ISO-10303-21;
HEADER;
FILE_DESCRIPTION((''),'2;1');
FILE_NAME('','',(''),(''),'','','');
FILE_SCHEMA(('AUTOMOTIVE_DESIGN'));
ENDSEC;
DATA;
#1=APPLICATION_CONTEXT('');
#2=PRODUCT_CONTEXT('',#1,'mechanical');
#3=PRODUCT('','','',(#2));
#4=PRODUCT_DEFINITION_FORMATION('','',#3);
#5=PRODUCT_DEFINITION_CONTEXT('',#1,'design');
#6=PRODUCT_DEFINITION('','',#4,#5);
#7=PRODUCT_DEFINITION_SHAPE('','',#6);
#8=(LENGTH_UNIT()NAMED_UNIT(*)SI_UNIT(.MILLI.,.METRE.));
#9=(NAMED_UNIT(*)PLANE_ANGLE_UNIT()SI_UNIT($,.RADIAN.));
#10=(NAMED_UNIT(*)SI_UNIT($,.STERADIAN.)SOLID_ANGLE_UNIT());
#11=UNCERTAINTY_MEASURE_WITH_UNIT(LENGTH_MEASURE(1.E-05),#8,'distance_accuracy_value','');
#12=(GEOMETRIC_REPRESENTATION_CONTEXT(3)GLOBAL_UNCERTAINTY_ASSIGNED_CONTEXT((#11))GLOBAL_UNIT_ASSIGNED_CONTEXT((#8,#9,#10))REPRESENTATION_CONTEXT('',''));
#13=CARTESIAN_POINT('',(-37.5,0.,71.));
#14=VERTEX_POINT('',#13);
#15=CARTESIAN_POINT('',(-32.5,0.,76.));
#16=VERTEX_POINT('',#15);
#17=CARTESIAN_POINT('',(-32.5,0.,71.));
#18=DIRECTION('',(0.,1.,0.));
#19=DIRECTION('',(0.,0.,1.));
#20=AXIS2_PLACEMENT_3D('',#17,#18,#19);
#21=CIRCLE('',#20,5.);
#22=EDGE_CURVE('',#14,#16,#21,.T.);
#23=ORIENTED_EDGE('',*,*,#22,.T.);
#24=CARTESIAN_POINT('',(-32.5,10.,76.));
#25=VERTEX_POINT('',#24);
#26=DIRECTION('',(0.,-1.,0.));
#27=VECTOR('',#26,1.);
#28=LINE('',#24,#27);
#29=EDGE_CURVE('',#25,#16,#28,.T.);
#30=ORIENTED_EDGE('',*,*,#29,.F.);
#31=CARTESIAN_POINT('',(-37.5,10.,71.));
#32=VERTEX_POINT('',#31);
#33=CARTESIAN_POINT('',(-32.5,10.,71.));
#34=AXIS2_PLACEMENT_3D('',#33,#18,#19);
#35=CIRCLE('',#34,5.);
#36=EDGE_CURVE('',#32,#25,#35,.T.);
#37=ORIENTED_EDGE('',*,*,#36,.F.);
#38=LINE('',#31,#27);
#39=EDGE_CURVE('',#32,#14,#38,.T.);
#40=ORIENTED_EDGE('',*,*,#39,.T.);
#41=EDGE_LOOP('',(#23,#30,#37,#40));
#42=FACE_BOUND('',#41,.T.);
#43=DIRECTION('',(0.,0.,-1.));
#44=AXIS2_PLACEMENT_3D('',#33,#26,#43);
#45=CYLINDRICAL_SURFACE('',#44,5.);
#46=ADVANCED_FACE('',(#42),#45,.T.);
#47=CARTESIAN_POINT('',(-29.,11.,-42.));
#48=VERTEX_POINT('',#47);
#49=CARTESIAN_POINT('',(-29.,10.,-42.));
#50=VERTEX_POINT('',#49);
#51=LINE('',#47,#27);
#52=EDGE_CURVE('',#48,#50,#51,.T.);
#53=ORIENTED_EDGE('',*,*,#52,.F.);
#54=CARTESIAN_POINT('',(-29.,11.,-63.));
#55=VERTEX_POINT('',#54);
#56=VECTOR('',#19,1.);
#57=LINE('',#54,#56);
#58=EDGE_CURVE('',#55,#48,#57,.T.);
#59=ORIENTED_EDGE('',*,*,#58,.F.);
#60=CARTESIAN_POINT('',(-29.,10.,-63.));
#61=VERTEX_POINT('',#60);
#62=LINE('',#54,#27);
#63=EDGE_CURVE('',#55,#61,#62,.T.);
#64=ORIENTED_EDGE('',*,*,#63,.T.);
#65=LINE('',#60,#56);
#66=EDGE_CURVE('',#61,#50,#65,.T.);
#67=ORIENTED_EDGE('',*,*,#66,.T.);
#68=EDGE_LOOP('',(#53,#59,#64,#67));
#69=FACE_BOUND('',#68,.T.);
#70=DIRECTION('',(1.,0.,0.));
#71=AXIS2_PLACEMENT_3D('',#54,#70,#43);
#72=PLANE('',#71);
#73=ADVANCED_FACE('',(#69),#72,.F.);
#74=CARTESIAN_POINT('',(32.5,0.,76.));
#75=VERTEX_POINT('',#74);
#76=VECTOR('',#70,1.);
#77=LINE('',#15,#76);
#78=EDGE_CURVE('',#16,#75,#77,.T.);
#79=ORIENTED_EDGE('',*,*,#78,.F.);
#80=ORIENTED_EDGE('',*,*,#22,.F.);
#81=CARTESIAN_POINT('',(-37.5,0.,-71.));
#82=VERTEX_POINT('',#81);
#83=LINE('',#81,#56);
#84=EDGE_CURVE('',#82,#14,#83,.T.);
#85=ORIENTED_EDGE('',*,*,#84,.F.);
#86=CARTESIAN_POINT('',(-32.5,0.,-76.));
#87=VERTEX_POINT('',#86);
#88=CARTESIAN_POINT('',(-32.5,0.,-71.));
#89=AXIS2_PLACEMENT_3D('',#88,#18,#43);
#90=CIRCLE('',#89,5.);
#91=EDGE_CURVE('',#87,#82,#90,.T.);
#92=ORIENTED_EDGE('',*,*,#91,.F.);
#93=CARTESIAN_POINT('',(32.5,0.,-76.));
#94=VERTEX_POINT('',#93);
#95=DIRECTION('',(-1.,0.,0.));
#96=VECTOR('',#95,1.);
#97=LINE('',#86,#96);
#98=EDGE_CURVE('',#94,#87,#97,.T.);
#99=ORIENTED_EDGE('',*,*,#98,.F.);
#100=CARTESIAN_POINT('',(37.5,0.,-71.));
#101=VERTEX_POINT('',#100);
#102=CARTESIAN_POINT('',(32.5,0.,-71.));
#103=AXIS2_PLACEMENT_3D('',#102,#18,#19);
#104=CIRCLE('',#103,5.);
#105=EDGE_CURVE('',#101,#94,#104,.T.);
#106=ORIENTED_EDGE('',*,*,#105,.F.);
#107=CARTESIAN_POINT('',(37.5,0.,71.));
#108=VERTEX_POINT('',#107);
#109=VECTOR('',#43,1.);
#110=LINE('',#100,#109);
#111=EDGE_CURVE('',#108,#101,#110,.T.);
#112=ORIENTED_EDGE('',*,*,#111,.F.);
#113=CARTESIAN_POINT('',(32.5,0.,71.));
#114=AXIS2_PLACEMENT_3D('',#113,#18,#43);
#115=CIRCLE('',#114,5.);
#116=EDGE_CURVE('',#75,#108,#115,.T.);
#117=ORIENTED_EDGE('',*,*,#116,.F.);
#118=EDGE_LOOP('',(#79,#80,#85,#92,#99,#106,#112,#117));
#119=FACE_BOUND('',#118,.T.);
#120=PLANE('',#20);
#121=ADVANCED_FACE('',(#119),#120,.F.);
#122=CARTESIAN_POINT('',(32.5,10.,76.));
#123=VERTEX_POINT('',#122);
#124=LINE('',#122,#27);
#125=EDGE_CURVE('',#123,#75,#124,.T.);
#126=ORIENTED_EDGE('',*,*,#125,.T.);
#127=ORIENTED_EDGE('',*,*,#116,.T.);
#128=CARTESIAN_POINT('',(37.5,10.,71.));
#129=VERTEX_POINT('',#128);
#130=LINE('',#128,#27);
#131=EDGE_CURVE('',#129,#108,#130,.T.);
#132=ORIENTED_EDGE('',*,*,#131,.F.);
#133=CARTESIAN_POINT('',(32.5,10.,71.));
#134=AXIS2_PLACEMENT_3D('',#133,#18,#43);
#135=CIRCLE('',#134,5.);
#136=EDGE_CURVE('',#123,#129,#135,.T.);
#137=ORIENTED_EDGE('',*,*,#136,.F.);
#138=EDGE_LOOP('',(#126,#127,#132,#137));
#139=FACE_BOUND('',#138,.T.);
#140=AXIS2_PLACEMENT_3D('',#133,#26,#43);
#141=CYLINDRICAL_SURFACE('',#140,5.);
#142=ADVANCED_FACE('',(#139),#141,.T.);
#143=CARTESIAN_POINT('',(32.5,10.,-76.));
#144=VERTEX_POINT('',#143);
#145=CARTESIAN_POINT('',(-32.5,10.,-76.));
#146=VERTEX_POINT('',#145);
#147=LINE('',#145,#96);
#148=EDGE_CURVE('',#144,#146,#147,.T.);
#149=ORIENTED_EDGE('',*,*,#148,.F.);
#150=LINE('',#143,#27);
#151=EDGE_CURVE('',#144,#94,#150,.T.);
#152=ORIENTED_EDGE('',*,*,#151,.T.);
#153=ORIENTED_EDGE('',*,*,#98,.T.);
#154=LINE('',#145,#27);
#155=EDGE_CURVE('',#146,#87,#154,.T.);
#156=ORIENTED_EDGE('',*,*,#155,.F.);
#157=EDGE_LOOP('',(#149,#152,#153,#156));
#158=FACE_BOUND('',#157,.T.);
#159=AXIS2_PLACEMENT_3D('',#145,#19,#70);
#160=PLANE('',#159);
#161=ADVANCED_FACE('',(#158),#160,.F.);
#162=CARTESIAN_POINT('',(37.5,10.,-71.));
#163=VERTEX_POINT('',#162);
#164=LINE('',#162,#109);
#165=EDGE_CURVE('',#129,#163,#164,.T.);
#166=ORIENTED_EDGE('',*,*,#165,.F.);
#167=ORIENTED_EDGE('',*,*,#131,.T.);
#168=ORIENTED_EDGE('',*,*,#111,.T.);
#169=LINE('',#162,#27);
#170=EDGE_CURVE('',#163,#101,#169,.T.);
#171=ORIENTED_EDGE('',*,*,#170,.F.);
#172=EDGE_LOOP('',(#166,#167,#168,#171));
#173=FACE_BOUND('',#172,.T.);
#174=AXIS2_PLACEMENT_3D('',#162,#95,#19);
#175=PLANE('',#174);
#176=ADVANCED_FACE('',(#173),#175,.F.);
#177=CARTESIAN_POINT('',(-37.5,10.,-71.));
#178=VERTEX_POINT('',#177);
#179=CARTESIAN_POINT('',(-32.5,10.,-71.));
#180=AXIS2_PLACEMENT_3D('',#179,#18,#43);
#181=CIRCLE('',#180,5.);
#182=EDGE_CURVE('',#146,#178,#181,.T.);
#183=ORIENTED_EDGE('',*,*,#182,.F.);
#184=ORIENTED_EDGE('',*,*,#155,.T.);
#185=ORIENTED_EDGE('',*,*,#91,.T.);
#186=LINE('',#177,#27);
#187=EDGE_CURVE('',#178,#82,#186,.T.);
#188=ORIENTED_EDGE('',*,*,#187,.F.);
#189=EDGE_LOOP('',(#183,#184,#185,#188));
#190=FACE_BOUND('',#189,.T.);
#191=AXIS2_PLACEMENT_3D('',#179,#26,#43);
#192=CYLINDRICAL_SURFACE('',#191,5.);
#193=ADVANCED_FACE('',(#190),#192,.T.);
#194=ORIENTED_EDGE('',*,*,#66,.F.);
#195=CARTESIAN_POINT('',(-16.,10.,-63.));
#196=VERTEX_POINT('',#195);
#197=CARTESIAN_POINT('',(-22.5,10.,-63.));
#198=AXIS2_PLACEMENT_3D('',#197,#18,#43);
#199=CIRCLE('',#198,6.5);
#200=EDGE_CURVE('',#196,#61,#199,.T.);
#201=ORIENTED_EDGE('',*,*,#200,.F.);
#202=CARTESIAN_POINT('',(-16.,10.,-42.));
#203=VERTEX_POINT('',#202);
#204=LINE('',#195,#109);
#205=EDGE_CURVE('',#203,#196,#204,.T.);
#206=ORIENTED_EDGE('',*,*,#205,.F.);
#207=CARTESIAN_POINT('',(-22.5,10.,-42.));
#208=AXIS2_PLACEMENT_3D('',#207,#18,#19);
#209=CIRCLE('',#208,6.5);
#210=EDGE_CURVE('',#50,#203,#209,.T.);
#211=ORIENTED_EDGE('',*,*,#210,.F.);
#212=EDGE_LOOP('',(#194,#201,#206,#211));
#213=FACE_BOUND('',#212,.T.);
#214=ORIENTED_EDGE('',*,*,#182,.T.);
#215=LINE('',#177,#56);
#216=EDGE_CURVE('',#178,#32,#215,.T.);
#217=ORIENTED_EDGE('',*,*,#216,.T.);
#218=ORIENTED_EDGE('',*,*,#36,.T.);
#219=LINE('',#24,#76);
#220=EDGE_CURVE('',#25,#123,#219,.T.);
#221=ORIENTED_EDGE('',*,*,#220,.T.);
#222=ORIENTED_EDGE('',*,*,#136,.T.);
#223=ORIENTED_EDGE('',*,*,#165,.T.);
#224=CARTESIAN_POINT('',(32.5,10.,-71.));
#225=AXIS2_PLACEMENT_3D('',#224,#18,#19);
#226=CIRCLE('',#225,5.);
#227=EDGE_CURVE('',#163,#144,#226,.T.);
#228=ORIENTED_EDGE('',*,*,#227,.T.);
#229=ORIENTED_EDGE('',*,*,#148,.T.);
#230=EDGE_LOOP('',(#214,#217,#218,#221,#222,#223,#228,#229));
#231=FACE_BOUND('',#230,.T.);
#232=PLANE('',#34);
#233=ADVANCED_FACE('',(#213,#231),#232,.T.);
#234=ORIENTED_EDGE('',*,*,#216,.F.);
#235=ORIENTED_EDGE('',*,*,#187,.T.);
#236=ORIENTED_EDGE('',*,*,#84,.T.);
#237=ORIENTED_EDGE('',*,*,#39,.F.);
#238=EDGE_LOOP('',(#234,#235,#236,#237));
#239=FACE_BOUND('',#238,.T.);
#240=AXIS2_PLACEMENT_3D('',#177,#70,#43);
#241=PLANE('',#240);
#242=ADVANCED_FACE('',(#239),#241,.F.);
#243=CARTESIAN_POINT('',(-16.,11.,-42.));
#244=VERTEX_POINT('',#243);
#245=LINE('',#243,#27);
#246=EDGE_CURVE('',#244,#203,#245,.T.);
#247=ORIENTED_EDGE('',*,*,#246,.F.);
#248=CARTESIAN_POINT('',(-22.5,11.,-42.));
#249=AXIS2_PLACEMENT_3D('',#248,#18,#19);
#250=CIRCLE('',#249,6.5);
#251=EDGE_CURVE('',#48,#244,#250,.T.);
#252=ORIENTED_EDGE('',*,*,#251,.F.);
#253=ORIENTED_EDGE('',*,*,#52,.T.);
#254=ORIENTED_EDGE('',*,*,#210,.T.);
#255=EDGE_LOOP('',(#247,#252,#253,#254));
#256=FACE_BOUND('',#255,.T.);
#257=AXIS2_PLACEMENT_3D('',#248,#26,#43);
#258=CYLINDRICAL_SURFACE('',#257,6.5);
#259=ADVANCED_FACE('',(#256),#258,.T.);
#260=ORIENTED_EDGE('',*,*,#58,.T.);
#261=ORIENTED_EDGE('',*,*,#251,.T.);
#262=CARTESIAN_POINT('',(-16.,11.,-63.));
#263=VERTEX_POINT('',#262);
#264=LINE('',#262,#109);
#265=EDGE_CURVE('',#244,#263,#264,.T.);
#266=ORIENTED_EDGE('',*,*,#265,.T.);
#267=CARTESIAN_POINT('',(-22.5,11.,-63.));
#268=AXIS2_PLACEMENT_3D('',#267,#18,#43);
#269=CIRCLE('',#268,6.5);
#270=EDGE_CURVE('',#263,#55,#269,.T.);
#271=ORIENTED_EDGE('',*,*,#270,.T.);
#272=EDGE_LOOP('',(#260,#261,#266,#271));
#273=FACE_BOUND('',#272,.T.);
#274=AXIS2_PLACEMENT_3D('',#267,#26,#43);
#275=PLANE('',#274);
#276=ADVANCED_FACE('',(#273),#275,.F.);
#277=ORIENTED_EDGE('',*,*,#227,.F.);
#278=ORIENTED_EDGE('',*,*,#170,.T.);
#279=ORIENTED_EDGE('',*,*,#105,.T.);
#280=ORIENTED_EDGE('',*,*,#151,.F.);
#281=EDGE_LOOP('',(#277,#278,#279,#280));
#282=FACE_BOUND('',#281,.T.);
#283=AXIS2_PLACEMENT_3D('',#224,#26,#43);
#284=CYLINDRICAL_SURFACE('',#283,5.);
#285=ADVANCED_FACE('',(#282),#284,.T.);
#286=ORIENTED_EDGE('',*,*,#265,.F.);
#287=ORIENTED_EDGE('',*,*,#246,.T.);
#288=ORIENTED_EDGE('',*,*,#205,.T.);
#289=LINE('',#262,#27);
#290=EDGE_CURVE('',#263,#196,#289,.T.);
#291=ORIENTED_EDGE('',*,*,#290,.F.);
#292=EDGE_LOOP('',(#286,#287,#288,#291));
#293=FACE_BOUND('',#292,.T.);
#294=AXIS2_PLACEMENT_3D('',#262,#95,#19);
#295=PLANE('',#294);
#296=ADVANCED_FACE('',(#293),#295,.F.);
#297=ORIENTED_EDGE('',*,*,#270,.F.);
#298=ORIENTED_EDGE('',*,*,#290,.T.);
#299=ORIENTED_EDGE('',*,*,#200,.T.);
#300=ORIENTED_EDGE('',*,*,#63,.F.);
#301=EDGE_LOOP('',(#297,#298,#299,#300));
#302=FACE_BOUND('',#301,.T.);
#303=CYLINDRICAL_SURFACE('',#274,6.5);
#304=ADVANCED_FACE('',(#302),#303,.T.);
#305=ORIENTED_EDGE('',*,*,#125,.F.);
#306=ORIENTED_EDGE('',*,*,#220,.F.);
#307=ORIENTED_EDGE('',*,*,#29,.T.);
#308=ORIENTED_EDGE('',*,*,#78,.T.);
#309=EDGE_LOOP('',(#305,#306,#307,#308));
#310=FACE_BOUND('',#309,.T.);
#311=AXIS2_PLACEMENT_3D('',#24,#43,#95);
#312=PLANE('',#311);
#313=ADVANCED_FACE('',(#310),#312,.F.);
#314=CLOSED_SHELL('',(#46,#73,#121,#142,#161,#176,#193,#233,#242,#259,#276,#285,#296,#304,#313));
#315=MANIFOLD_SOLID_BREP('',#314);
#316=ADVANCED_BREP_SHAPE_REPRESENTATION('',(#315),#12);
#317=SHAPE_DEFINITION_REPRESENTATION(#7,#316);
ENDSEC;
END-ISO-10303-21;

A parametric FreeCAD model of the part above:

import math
import FreeCAD as App
import Part
import Sketcher
from FreeCAD import Vector

doc = App.newDocument("Part")
params = doc.addObject("Spreadsheet::Sheet", "Params")
for row, (alias, value) in enumerate([
    ("sketch1_radius", "5 mm"),
    ("sketch1_width", "65 mm"),
    ("sketch1_height", "142 mm"),
    ("pad1_length", "10 mm"),
    ("sketch2_radius", "6.5 mm"),
    ("sketch2_height", "21 mm"),
    ("pad2_length", "1 mm"),
], start=1):
    params.set(f"A{row}", alias)
    params.set(f"B{row}", "=" + value)
    params.setAlias(f"B{row}", alias)

body = doc.addObject("PartDesign::Body", "Body")

sketch1 = body.newObject("Sketcher::SketchObject", "Sketch")
sketch1.AttachmentSupport = (doc.getObject("XZ_Plane"), [""])
sketch1.MapMode = "FlatFace"
sketch1.addGeometry([
    Part.LineSegment(Vector(32, -76, 0), Vector(-32, -76, 0)),
    Part.ArcOfCircle(Part.Circle(Vector(-32, -71, 0), Vector(0, 0, 1), 5), math.radians(180), math.radians(270)),
    Part.LineSegment(Vector(-38, -71, 0), Vector(-38, 71, 0)),
    Part.ArcOfCircle(Part.Circle(Vector(-32, 71, 0), Vector(0, 0, 1), 5), math.radians(90), math.radians(180)),
    Part.LineSegment(Vector(-32, 76, 0), Vector(32, 76, 0)),
    Part.ArcOfCircle(Part.Circle(Vector(32, 71, 0), Vector(0, 0, 1), 5), math.radians(0), math.radians(90)),
    Part.LineSegment(Vector(38, 71, 0), Vector(38, -71, 0)),
    Part.ArcOfCircle(Part.Circle(Vector(32, -71, 0), Vector(0, 0, 1), 5), math.radians(-90), math.radians(0)),
], False)
sketch1.addConstraint([
    Sketcher.Constraint("Tangent", 0, 2, 1, 2),
    Sketcher.Constraint("Tangent", 1, 1, 2, 1),
    Sketcher.Constraint("Tangent", 2, 2, 3, 2),
    Sketcher.Constraint("Tangent", 3, 1, 4, 1),
    Sketcher.Constraint("Tangent", 4, 2, 5, 2),
    Sketcher.Constraint("Tangent", 5, 1, 6, 1),
    Sketcher.Constraint("Tangent", 6, 2, 7, 2),
    Sketcher.Constraint("Tangent", 7, 1, 0, 1),
    Sketcher.Constraint("Horizontal", 0),
    Sketcher.Constraint("Vertical", 2),
    Sketcher.Constraint("Horizontal", 4),
    Sketcher.Constraint("Vertical", 6),
    Sketcher.Constraint("Equal", 1, 3),
    Sketcher.Constraint("Equal", 3, 5),
    Sketcher.Constraint("Equal", 5, 7),
    Sketcher.Constraint("Symmetric", 1, 3, 5, 3, -1, 1),
    Sketcher.Constraint("Radius", 1, 5.0),
    Sketcher.Constraint("DistanceX", 0, 2, 0, 1, 65.0),
    Sketcher.Constraint("DistanceY", 2, 1, 2, 2, 142.0),
])
sketch1.setExpression("Constraints[16]", "Params.sketch1_radius")
sketch1.setExpression("Constraints[17]", "Params.sketch1_width")
sketch1.setExpression("Constraints[18]", "Params.sketch1_height")
pad1 = body.newObject("PartDesign::Pad", "Pad")
pad1.Profile = sketch1
pad1.setExpression("Length", "Params.pad1_length")
pad1.Reversed = True

sketch2 = body.newObject("Sketcher::SketchObject", "Sketch001")
sketch2.AttachmentSupport = (doc.getObject("XZ_Plane"), [""])
sketch2.MapMode = "FlatFace"
sketch2.AttachmentOffset = App.Placement(Vector(0, 0, -10), App.Rotation())
sketch2.addGeometry([
    Part.LineSegment(Vector(-29, -63, 0), Vector(-29, -42, 0)),
    Part.ArcOfCircle(Part.Circle(Vector(-22, -42, 0), Vector(0, 0, 1), 6), math.radians(0), math.radians(180)),
    Part.LineSegment(Vector(-16, -42, 0), Vector(-16, -63, 0)),
    Part.ArcOfCircle(Part.Circle(Vector(-22, -63, 0), Vector(0, 0, 1), 6), math.radians(180), math.radians(360)),
], False)
sketch2.addConstraint([
    Sketcher.Constraint("Tangent", 0, 2, 1, 2),
    Sketcher.Constraint("Tangent", 1, 1, 2, 1),
    Sketcher.Constraint("Tangent", 2, 2, 3, 2),
    Sketcher.Constraint("Tangent", 3, 1, 0, 1),
    Sketcher.Constraint("Vertical", 0),
    Sketcher.Constraint("Vertical", 2),
    Sketcher.Constraint("Radius", 1, 6.5),
    Sketcher.Constraint("DistanceY", 0, 1, 0, 2, 21.0),
    Sketcher.Constraint("DistanceY", 1, 3, -1, 1, 42.0),
    Sketcher.Constraint("DistanceX", 0, 2, -1, 1, 29.0),
])
sketch2.setExpression("Constraints[6]", "Params.sketch2_radius")
sketch2.setExpression("Constraints[7]", "Params.sketch2_height")
pad2 = body.newObject("PartDesign::Pad", "Pad001")
pad2.Profile = sketch2
pad2.setExpression("Length", "Params.pad2_length")
pad2.Reversed = True

doc.recompute()
